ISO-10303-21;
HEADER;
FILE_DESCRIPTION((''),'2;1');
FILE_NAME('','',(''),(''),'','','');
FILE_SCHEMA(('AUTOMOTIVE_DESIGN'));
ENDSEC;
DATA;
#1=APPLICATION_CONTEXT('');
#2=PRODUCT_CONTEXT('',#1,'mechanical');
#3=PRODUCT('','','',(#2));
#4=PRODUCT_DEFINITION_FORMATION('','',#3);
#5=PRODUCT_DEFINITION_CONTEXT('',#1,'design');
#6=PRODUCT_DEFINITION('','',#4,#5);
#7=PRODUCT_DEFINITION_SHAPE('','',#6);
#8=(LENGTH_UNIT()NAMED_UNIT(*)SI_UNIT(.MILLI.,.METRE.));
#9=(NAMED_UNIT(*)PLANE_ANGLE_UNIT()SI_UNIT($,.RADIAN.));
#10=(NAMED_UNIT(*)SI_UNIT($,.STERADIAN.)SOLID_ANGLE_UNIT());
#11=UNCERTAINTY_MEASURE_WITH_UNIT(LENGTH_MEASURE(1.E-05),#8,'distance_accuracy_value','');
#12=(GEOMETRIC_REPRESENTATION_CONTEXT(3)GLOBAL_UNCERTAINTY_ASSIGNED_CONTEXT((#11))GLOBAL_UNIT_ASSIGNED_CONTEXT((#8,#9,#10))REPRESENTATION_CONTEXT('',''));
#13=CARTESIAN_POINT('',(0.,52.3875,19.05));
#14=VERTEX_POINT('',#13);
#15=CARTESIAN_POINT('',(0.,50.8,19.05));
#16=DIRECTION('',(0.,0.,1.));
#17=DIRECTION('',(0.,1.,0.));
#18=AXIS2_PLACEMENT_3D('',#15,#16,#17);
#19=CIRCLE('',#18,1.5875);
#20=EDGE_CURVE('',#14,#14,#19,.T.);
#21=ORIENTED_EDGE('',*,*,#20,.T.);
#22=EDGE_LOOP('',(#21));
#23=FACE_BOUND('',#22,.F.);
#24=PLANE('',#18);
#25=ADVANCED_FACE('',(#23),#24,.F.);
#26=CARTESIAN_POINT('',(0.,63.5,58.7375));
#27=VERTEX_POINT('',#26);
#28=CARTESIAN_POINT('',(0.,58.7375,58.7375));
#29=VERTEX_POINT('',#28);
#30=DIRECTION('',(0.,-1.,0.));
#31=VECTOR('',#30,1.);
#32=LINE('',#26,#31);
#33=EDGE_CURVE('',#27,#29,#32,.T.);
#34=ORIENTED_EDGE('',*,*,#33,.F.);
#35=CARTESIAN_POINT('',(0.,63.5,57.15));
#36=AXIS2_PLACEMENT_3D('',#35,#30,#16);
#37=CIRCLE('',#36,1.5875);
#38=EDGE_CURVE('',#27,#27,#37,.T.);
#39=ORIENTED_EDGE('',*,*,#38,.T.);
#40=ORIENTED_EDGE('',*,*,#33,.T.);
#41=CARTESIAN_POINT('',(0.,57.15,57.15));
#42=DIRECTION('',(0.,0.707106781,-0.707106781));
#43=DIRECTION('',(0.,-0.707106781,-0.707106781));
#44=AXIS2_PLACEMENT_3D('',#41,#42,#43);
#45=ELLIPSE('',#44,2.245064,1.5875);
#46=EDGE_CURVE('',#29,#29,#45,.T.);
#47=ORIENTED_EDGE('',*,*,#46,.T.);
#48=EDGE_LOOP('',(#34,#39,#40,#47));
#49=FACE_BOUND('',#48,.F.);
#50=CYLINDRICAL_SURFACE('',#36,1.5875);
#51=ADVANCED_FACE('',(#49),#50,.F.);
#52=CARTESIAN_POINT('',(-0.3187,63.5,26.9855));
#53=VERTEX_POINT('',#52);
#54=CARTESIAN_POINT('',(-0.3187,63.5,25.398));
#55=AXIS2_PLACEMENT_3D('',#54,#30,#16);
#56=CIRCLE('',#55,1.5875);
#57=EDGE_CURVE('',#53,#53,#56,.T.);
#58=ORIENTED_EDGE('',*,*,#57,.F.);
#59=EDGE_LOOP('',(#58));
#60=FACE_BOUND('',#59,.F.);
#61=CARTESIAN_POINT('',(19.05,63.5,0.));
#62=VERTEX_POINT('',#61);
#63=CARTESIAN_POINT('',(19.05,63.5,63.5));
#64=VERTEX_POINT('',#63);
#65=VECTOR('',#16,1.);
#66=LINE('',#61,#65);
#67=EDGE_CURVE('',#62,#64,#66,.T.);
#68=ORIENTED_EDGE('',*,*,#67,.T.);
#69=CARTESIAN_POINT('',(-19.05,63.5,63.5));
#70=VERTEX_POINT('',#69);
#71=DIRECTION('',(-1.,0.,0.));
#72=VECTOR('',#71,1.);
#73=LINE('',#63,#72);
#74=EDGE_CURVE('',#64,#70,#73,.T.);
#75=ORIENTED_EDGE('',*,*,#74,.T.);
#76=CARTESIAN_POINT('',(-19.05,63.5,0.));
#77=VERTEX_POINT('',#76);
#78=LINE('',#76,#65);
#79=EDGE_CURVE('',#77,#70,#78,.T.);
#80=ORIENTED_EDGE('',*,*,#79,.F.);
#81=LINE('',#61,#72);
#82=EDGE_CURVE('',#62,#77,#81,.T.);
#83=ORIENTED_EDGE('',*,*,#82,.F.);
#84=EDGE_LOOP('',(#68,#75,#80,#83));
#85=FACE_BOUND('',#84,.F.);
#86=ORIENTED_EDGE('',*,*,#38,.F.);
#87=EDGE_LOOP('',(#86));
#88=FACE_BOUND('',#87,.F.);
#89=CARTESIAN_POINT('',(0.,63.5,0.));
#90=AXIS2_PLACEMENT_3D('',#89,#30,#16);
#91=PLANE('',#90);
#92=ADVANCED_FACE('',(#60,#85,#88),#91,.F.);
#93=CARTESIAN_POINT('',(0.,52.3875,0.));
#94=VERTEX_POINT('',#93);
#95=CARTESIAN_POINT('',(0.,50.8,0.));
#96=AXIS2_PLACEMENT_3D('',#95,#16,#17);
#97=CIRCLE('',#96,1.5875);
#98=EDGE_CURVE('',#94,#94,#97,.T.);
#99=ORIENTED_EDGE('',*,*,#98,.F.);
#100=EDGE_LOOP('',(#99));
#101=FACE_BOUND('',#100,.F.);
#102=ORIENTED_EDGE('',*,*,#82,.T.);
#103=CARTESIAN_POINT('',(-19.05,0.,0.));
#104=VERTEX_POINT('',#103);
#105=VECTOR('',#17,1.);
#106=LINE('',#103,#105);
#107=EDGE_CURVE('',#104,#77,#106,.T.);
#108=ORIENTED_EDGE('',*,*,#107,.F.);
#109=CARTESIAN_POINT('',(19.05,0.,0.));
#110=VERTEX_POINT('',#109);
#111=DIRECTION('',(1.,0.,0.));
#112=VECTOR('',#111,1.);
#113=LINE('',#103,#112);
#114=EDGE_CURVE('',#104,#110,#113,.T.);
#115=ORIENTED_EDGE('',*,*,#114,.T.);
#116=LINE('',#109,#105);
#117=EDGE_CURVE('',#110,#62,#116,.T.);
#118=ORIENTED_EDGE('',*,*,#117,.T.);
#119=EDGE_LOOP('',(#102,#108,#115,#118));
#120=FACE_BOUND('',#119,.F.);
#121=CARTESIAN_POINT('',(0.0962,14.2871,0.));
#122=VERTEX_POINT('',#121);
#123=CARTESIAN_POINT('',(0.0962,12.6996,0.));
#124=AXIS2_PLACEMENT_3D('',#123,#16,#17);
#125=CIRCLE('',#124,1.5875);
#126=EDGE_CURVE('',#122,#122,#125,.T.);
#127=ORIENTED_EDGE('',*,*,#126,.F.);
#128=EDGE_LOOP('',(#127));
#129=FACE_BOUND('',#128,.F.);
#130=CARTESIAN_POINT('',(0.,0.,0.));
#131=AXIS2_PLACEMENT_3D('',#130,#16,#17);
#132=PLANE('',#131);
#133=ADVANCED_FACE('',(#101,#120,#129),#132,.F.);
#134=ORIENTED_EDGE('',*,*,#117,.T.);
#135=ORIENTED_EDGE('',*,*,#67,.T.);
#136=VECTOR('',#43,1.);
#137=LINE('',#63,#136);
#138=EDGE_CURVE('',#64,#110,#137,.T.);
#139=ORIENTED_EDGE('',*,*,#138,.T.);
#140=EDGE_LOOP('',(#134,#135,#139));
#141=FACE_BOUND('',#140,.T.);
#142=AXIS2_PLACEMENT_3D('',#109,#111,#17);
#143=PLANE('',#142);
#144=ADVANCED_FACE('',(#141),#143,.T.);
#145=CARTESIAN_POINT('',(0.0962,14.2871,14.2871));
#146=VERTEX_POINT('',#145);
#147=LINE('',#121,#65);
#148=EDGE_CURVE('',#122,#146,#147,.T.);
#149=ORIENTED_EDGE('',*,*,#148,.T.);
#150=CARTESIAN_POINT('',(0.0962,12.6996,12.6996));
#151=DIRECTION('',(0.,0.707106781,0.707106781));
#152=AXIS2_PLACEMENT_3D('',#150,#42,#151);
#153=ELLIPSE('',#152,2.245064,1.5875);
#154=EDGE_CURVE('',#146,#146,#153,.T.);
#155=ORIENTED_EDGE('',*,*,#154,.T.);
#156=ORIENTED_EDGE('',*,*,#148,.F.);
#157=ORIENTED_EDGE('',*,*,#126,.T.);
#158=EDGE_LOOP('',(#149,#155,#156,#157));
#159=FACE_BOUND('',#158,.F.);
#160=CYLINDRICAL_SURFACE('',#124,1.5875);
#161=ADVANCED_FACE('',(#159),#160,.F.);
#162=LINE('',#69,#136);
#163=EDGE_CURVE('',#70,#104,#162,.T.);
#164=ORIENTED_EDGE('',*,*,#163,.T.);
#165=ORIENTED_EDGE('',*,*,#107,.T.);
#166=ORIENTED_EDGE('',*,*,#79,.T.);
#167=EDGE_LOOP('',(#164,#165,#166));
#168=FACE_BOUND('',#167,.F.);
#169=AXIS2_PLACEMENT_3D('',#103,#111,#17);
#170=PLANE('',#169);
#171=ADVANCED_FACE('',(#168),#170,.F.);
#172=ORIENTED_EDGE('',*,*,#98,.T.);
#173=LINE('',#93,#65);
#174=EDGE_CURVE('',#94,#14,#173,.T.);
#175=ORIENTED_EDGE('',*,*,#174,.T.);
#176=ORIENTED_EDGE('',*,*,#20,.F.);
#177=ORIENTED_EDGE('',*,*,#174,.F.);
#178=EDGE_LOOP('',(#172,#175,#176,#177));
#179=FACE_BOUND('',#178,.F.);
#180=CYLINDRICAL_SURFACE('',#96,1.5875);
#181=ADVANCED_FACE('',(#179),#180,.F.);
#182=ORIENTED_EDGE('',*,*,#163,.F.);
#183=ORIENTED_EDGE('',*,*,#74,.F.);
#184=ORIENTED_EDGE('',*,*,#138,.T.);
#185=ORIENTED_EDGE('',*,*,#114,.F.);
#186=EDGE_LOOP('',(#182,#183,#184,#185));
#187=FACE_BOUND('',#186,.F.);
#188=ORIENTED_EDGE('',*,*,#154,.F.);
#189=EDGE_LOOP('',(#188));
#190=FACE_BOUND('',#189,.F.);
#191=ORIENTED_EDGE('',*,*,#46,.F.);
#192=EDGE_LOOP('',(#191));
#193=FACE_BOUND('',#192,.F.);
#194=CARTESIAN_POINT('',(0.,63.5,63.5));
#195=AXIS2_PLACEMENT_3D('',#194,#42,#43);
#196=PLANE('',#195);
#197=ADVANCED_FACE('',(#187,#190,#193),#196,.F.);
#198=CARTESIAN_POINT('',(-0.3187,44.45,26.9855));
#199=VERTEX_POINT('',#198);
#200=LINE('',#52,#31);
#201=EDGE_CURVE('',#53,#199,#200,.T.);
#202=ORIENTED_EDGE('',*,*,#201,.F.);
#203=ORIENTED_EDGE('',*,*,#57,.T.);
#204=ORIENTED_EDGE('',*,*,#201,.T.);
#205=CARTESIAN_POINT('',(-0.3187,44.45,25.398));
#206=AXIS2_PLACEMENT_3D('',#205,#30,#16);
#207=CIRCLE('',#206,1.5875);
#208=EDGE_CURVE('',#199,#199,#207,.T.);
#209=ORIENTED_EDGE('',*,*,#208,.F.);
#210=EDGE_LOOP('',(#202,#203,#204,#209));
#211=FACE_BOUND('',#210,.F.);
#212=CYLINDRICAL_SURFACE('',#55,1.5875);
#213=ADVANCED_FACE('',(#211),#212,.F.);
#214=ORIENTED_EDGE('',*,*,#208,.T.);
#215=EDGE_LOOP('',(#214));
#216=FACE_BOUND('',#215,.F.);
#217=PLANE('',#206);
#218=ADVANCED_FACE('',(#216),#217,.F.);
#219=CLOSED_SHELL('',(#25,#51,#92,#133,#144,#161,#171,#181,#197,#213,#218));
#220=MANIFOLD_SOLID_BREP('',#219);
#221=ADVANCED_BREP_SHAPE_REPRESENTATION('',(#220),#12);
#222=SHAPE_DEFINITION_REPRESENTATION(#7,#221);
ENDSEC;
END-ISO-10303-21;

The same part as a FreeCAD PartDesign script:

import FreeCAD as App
import Part
import Sketcher
Q = App.Units.Quantity

doc = App.newDocument("Part")
body = doc.addObject("PartDesign::Body", "Body")

sketch1 = doc.addObject("Sketcher::SketchObject", "Sketch")
body.addObject(sketch1)
sketch1.AttachmentSupport = (doc.YZ_Plane, [""])
sketch1.MapMode = "FlatFace"
sketch1.addGeometry([
    Part.LineSegment(App.Vector(64, 64, 0), App.Vector(0, 0, 0)),
    Part.LineSegment(App.Vector(0, 0, 0), App.Vector(64, 0, 0)),
    Part.LineSegment(App.Vector(64, 0, 0), App.Vector(64, 64, 0)),
], False)
sketch1.addConstraint([
    Sketcher.Constraint("Coincident", 0, 2, 1, 1),
    Sketcher.Constraint("Coincident", 1, 2, 2, 1),
    Sketcher.Constraint("Coincident", 2, 2, 0, 1),
    Sketcher.Constraint("Horizontal", 1),
    Sketcher.Constraint("Vertical", 2),
    Sketcher.Constraint("Coincident", 0, 2, -1, 1),
    Sketcher.Constraint("Equal", 1, 2),
    Sketcher.Constraint("DistanceX", 1, 1, 1, 2, Q("2.5 in")),
])
pad1 = doc.addObject("PartDesign::Pad", "Pad")
body.addObject(pad1)
pad1.Profile = sketch1
pad1.Length = Q("1.5 in")
pad1.Midplane = True

sketch2 = doc.addObject("Sketcher::SketchObject", "Sketch001")
body.addObject(sketch2)
sketch2.AttachmentSupport = (doc.XZ_Plane, [""])
sketch2.MapMode = "FlatFace"
sketch2.AttachmentOffset = App.Placement(App.Vector(0, 0, -2.5 * 25.4), App.Rotation())
sketch2.addGeometry([
    Part.Circle(App.Vector(0, 57.1, 0), App.Vector(0, 0, 1), 1.6),
    Part.Circle(App.Vector(-0.3, 25.4, 0), App.Vector(0, 0, 1), 1.6),
], False)
sketch2.addConstraint([
    Sketcher.Constraint("Equal", 0, 1),
    Sketcher.Constraint("PointOnObject", 0, 3, -2),
    Sketcher.Constraint("Diameter", 0, Q("0.125 in")),
    Sketcher.Constraint("DistanceY", -1, 1, 0, 3, Q("2.25 in")),
    Sketcher.Constraint("DistanceX", 1, 3, -1, 1, 0.3187),
    Sketcher.Constraint("DistanceY", -1, 1, 1, 3, 25.398),
])
doc.recompute()
hole = doc.addObject("PartDesign::Hole", "Hole")
body.addObject(hole)
hole.Profile = sketch2
hole.ThreadType = "None"
hole.Diameter = Q("0.125 in")
hole.DepthType = "Dimension"
hole.Depth = Q("0.75 in")
hole.DrillPoint = "Flat"
hole.Reversed = True

sketch3 = doc.addObject("Sketcher::SketchObject", "Sketch002")
body.addObject(sketch3)
sketch3.AttachmentSupport = (doc.XY_Plane, [""])
sketch3.MapMode = "FlatFace"
sketch3.addGeometry([
    Part.Circle(App.Vector(0, 50.8, 0), App.Vector(0, 0, 1), 1.6),
    Part.Circle(App.Vector(0.1, 12.7, 0), App.Vector(0, 0, 1), 1.6),
], False)
sketch3.addConstraint([
    Sketcher.Constraint("Equal", 0, 1),
    Sketcher.Constraint("PointOnObject", 0, 3, -2),
    Sketcher.Constraint("Diameter", 0, Q("0.125 in")),
    Sketcher.Constraint("DistanceY", -1, 1, 0, 3, Q("2 in")),
    Sketcher.Constraint("DistanceX", -1, 1, 1, 3, 0.0962),
    Sketcher.Constraint("DistanceY", -1, 1, 1, 3, 12.6996),
])
doc.recompute()
hole2 = doc.addObject("PartDesign::Hole", "Hole001")
body.addObject(hole2)
hole2.Profile = sketch3
hole2.ThreadType = "None"
hole2.Diameter = Q("0.125 in")
hole2.DepthType = "Dimension"
hole2.Depth = Q("0.75 in")
hole2.DrillPoint = "Flat"
hole2.Reversed = True

doc.recompute()
